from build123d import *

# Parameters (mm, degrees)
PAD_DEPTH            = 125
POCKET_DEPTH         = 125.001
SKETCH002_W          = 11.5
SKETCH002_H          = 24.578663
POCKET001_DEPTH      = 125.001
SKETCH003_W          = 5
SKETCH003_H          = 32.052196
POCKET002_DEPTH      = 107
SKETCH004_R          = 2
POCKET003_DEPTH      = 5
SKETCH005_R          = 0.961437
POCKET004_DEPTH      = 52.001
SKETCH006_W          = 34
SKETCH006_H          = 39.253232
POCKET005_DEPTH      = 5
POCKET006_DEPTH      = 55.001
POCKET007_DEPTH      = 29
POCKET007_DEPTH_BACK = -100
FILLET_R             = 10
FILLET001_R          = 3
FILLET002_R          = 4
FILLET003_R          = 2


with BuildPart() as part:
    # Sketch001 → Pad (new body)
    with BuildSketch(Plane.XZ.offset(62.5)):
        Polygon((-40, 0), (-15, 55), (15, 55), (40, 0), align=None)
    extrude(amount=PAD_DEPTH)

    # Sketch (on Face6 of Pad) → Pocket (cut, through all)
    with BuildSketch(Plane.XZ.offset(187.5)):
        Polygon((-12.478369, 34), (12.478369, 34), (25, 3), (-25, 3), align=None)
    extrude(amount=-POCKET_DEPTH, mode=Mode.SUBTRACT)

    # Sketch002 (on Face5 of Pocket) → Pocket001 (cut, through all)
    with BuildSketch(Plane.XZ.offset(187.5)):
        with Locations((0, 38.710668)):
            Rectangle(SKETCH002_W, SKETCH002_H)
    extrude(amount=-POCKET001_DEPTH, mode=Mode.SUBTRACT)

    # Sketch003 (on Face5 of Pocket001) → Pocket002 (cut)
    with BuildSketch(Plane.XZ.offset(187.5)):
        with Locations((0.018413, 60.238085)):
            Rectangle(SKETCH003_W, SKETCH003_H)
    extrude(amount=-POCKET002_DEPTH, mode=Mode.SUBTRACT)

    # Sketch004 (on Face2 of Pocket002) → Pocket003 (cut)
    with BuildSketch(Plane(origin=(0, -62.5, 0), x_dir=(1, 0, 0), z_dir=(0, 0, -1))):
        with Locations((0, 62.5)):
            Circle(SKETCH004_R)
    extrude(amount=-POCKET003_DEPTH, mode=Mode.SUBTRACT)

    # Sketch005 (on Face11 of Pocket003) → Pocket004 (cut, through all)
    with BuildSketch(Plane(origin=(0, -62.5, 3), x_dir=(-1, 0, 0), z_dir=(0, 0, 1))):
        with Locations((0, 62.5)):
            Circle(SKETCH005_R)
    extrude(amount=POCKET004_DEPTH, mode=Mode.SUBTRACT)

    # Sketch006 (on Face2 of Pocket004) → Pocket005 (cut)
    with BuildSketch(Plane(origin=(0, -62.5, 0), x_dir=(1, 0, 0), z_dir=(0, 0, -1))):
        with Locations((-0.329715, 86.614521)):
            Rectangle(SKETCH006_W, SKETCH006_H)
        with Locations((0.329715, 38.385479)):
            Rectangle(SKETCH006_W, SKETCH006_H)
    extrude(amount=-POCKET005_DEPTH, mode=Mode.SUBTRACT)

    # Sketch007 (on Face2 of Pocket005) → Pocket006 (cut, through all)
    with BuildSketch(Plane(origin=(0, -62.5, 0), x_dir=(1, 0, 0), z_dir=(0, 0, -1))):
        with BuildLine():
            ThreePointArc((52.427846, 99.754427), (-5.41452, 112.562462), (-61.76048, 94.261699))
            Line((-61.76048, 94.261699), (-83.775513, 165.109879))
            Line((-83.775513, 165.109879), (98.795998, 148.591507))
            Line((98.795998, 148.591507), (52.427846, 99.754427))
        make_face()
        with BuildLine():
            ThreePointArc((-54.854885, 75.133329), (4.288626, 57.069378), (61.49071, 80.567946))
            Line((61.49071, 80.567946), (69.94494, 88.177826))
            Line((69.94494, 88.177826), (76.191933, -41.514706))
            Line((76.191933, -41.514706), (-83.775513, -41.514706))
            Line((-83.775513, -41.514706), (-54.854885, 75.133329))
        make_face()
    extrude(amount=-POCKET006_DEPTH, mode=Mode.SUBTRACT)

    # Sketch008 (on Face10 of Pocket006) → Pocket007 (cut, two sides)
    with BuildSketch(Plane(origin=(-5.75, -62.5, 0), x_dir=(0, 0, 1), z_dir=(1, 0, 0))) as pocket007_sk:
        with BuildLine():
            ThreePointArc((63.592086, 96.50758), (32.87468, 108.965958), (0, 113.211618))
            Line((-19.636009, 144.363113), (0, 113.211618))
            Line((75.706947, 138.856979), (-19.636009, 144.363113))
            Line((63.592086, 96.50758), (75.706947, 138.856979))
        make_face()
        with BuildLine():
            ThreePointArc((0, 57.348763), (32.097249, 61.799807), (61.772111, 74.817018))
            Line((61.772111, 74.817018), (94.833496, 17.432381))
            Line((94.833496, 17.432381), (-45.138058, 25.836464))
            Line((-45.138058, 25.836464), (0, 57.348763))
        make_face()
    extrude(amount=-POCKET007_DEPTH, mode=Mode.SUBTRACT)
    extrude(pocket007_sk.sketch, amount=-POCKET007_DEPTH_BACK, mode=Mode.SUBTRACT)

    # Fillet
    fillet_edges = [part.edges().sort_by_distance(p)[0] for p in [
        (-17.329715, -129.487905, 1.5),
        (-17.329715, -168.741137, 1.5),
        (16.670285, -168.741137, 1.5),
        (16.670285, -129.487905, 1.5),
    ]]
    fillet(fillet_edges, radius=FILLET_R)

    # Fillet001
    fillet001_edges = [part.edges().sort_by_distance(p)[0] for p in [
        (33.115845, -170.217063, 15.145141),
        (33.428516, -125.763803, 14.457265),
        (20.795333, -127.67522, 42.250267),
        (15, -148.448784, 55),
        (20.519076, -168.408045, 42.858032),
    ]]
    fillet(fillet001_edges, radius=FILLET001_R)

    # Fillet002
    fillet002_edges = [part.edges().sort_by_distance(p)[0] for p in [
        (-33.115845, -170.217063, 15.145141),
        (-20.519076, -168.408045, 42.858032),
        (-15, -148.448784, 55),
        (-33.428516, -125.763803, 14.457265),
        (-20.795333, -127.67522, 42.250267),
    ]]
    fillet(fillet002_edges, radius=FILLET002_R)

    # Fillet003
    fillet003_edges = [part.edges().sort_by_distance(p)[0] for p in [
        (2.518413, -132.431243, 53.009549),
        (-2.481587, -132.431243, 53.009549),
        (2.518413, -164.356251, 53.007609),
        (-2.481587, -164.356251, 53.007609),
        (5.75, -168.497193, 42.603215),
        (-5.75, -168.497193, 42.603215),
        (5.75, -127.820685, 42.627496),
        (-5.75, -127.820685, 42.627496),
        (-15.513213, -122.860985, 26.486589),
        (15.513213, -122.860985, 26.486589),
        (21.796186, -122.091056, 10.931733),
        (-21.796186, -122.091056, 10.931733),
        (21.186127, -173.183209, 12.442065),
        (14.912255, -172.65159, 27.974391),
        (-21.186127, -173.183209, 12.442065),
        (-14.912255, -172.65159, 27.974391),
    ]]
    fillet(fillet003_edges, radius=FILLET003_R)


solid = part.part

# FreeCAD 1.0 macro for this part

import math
import FreeCAD as App
import Part
import Sketcher


def edges_at(feature, points):
    """Names of the edges that pass closest to the given points."""
    edges = feature.Shape.Edges
    near = lambda p: min(range(len(edges)), key=lambda i: edges[i].distToShape(Part.Vertex(*p))[0])
    return sorted({f"Edge{near(p) + 1}" for p in points})


def add_polygon(sketch, points):
    """Adds a closed chain of lines whose ends are joined by coincident constraints."""
    first, n = sketch.GeometryCount, len(points)
    for a, b in zip(points, points[1:] + points[:1]):
        sketch.addGeometry(Part.LineSegment(App.Vector(*a, 0), App.Vector(*b, 0)), False)
    for i in range(n):
        sketch.addConstraint(Sketcher.Constraint("Coincident", first + i, 2, first + (i + 1) % n, 1))

doc = App.newDocument("Part")
params = doc.addObject("Spreadsheet::Sheet", "Params")
for row, (alias, value) in enumerate([
    ("sketch1_width", "80 mm"),
    ("sketch1_width2", "30 mm"),
    ("pad1_length", "125 mm"),
    ("sketch2_width", "50 mm"),
    ("sketch3_width", "11.5 mm"),
    ("sketch4_width", "5 mm"),
    ("pocket3_length", "107 mm"),
    ("sketch5_diameter", "4 mm"),
    ("pocket4_length", "5 mm"),
    ("sketch7_width", "34 mm"),
    ("pocket6_length", "5 mm"),
    ("fillet_radius", "10 mm"),
    ("fillet2_radius", "3 mm"),
    ("fillet3_radius", "4 mm"),
    ("fillet4_radius", "2 mm"),
], start=1):
    params.set(f"A{row}", alias)
    params.set(f"B{row}", "=" + value)
    params.setAlias(f"B{row}", alias)

body = doc.addObject("PartDesign::Body", "Body")

# Sketch on XZ plane
sketch1 = doc.addObject("Sketcher::SketchObject", "Sketch")
body.addObject(sketch1)
sketch1.AttachmentSupport = (doc.XZ_Plane, [""])
sketch1.MapMode = "FlatFace"
sketch1.AttachmentOffset = App.Placement(App.Vector(0, 0, 62.5), App.Rotation())
add_polygon(sketch1, [(-15, 55), (-40, 0), (40, 0), (15, 55)])  # lines 0-3
sketch1.addConstraint([
    Sketcher.Constraint("Horizontal", 1),
    Sketcher.Constraint("Horizontal", 3),
    Sketcher.Constraint("Symmetric", 0, 2, 1, 2, -1, 1),
    Sketcher.Constraint("Equal", 0, 2),
    Sketcher.Constraint("DistanceX", 1, 1, 1, 2, 80.0),
    Sketcher.Constraint("DistanceX", 3, 2, 3, 1, 30.0),
    Sketcher.Constraint("DistanceY", -1, 1, 2, 2, 55.0),
])
sketch1.setExpression("Constraints[8]", "Params.sketch1_width")
sketch1.setExpression("Constraints[9]", "Params.sketch1_width2")
pad1 = doc.addObject("PartDesign::Pad", "Pad")
body.addObject(pad1)
pad1.Profile = sketch1
pad1.setExpression("Length", "Params.pad1_length")

# Sketch on XZ plane
sketch2 = doc.addObject("Sketcher::SketchObject", "Sketch001")
body.addObject(sketch2)
sketch2.AttachmentSupport = (doc.XZ_Plane, [""])
sketch2.MapMode = "FlatFace"
sketch2.AttachmentOffset = App.Placement(App.Vector(0, 0, 187.5), App.Rotation())
add_polygon(sketch2, [(12, 34), (-12, 34), (-25, 3), (25, 3)])  # lines 0-3
sketch2.addConstraint([
    Sketcher.Constraint("Horizontal", 0),
    Sketcher.Constraint("Horizontal", 2),
    Sketcher.Constraint("Equal", 1, 3),
    Sketcher.Constraint("DistanceX", 2, 1, 2, 2, 50.0),
    Sketcher.Constraint("DistanceY", -1, 1, 0, 2, 34.0),
    Sketcher.Constraint("DistanceX", 1, 2, -1, 1, 25.0),
    Sketcher.Constraint("DistanceY", -1, 1, 1, 2, 3.0),
    Sketcher.Constraint("DistanceX", 0, 2, 0, 1, 24.956738),
])
sketch2.setExpression("Constraints[7]", "Params.sketch2_width")
pocket1 = doc.addObject("PartDesign::Pocket", "Pocket")
body.addObject(pocket1)
pocket1.Profile = sketch2
pocket1.Type = "ThroughAll"

# Sketch on XZ plane
sketch3 = doc.addObject("Sketcher::SketchObject", "Sketch002")
body.addObject(sketch3)
sketch3.AttachmentSupport = (doc.XZ_Plane, [""])
sketch3.MapMode = "FlatFace"
sketch3.AttachmentOffset = App.Placement(App.Vector(0, 0, 187.5), App.Rotation())
add_polygon(sketch3, [(-6, 51), (-6, 26), (6, 26), (6, 51)])  # lines 0-3
sketch3.addConstraint([
    Sketcher.Constraint("Vertical", 0),
    Sketcher.Constraint("Horizontal", 1),
    Sketcher.Constraint("Vertical", 2),
    Sketcher.Constraint("Horizontal", 3),
    Sketcher.Constraint("DistanceX", 1, 1, 1, 2, 11.5),
    Sketcher.Constraint("DistanceY", -1, 1, 2, 2, 51.0),
    Sketcher.Constraint("DistanceX", 0, 2, -1, 1, 5.75),
    Sketcher.Constraint("DistanceY", 0, 2, 0, 1, 24.578663),
])
sketch3.setExpression("Constraints[8]", "Params.sketch3_width")
pocket2 = doc.addObject("PartDesign::Pocket", "Pocket001")
body.addObject(pocket2)
pocket2.Profile = sketch3
pocket2.Type = "ThroughAll"

# Sketch on XZ plane
sketch4 = doc.addObject("Sketcher::SketchObject", "Sketch003")
body.addObject(sketch4)
sketch4.AttachmentSupport = (doc.XZ_Plane, [""])
sketch4.MapMode = "FlatFace"
sketch4.AttachmentOffset = App.Placement(App.Vector(0, 0, 187.5), App.Rotation())
add_polygon(sketch4, [(-2, 76), (-2, 44), (3, 44), (3, 76)])  # lines 0-3
sketch4.addConstraint([
    Sketcher.Constraint("Vertical", 0),
    Sketcher.Constraint("Horizontal", 1),
    Sketcher.Constraint("Vertical", 2),
    Sketcher.Constraint("Horizontal", 3),
    Sketcher.Constraint("DistanceX", 1, 1, 1, 2, 5.0),
    Sketcher.Constraint("DistanceY", 0, 2, 0, 1, 32.052196),
    Sketcher.Constraint("DistanceX", 0, 2, -1, 1, 2.481587),
    Sketcher.Constraint("DistanceY", -1, 1, 0, 2, 44.211987),
])
sketch4.setExpression("Constraints[8]", "Params.sketch4_width")
pocket3 = doc.addObject("PartDesign::Pocket", "Pocket002")
body.addObject(pocket3)
pocket3.Profile = sketch4
pocket3.setExpression("Length", "Params.pocket3_length")

# Sketch on XY plane
sketch5 = doc.addObject("Sketcher::SketchObject", "Sketch004")
body.addObject(sketch5)
sketch5.AttachmentSupport = (doc.XY_Plane, [""])
sketch5.MapMode = "FlatFace"
sketch5.addGeometry(Part.Circle(App.Vector(0, -125, 0), App.Vector(0, 0, 1), 2), False)
sketch5.addConstraint([
    Sketcher.Constraint("PointOnObject", 0, 3, -2),
    Sketcher.Constraint("Diameter", 0, 4.0),
    Sketcher.Constraint("DistanceY", 0, 3, -1, 1, 125.0),
])
sketch5.setExpression("Constraints[1]", "Params.sketch5_diameter")
pocket4 = doc.addObject("PartDesign::Pocket", "Pocket003")
body.addObject(pocket4)
pocket4.Profile = sketch5
pocket4.setExpression("Length", "Params.pocket4_length")
pocket4.Reversed = True

# Sketch on XY plane
sketch6 = doc.addObject("Sketcher::SketchObject", "Sketch005")
body.addObject(sketch6)
sketch6.AttachmentSupport = (doc.XY_Plane, [""])
sketch6.MapMode = "FlatFace"
sketch6.AttachmentOffset = App.Placement(App.Vector(0, 0, 3), App.Rotation())
sketch6.addGeometry(Part.Circle(App.Vector(0, -125, 0), App.Vector(0, 0, 1), 1), False)
sketch6.addConstraint([
    Sketcher.Constraint("PointOnObject", 0, 3, -2),
    Sketcher.Constraint("DistanceY", 0, 3, -1, 1, 125.0),
    Sketcher.Constraint("Diameter", 0, 1.922874),
])
pocket5 = doc.addObject("PartDesign::Pocket", "Pocket004")
body.addObject(pocket5)
pocket5.Profile = sketch6
pocket5.Type = "ThroughAll"
pocket5.Reversed = True

# Sketch on XY plane
sketch7 = doc.addObject("Sketcher::SketchObject", "Sketch006")
body.addObject(sketch7)
sketch7.AttachmentSupport = (doc.XY_Plane, [""])
sketch7.MapMode = "FlatFace"
add_polygon(sketch7, [(-17, -169), (-17, -129), (17, -129), (17, -169)])  # lines 0-3
add_polygon(sketch7, [(-17, -121), (-17, -81), (17, -81), (17, -121)])  # lines 4-7
sketch7.addConstraint([
    Sketcher.Constraint("Vertical", 0),
    Sketcher.Constraint("Horizontal", 1),
    Sketcher.Constraint("Vertical", 2),
    Sketcher.Constraint("Horizontal", 3),
    Sketcher.Constraint("Vertical", 4),
    Sketcher.Constraint("Horizontal", 5),
    Sketcher.Constraint("Vertical", 6),
    Sketcher.Constraint("Horizontal", 7),
    Sketcher.Constraint("Equal", 3, 5),
    Sketcher.Constraint("Equal", 2, 4),
    Sketcher.Constraint("DistanceX", 1, 1, 1, 2, 34.0),
    Sketcher.Constraint("DistanceY", 0, 1, 0, 2, 39.253232),
    Sketcher.Constraint("DistanceX", 0, 2, 4, 2, 0.65943),
    Sketcher.Constraint("DistanceY", 1, 2, 6, 2, 8.97581),
    Sketcher.Constraint("DistanceX", 0, 2, -1, 1, 17.329715),
    Sketcher.Constraint("DistanceY", 0, 2, -1, 1, 129.487905),
])
sketch7.setExpression("Constraints[18]", "Params.sketch7_width")
pocket6 = doc.addObject("PartDesign::Pocket", "Pocket005")
body.addObject(pocket6)
pocket6.Profile = sketch7
pocket6.setExpression("Length", "Params.pocket6_length")
pocket6.Reversed = True

# Sketch on XY plane
sketch8 = doc.addObject("Sketcher::SketchObject", "Sketch007")
body.addObject(sketch8)
sketch8.AttachmentSupport = (doc.XY_Plane, [""])
sketch8.MapMode = "FlatFace"
sketch8.addGeometry([
    Part.ArcOfCircle(Part.Circle(App.Vector(0, -63, 0), App.Vector(0, 0, 1), 113), math.radians(-123), math.radians(-62)),  # 0
    Part.LineSegment(App.Vector(52, -162, 0), App.Vector(99, -211, 0)),  # 1
    Part.LineSegment(App.Vector(99, -211, 0), App.Vector(-84, -228, 0)),  # 2
    Part.LineSegment(App.Vector(-84, -228, 0), App.Vector(-62, -157, 0)),  # 3
    Part.ArcOfCircle(Part.Circle(App.Vector(0, -211, 0), App.Vector(0, 0, 1), 92), math.radians(48), math.radians(127)),  # 4
    Part.LineSegment(App.Vector(-55, -138, 0), App.Vector(-84, -21, 0)),  # 5
    Part.LineSegment(App.Vector(-84, -21, 0), App.Vector(76, -21, 0)),  # 6
    Part.LineSegment(App.Vector(76, -21, 0), App.Vector(70, -151, 0)),  # 7
    Part.LineSegment(App.Vector(70, -151, 0), App.Vector(61, -143, 0)),  # 8
], False)
sketch8.addConstraint([
    Sketcher.Constraint("Coincident", 0, 2, 1, 1),
    Sketcher.Constraint("Coincident", 1, 2, 2, 1),
    Sketcher.Constraint("Coincident", 2, 2, 3, 1),
    Sketcher.Constraint("Coincident", 3, 2, 0, 1),
    Sketcher.Constraint("Coincident", 4, 2, 5, 1),
    Sketcher.Constraint("Coincident", 5, 2, 6, 1),
    Sketcher.Constraint("Coincident", 6, 2, 7, 1),
    Sketcher.Constraint("Coincident", 7, 2, 8, 1),
    Sketcher.Constraint("Tangent", 8, 2, 4, 1),
    Sketcher.Constraint("Horizontal", 6),
    Sketcher.Constraint("PointOnObject", 0, 3, -2),
    Sketcher.Constraint("PointOnObject", 4, 3, -2),
    Sketcher.Constraint("Vertical", 2, 2, 5, 2),
    Sketcher.Constraint("Radius", 0, 112.692609),
    Sketcher.Constraint("Radius", 4, 91.912039),
    Sketcher.Constraint("DistanceX", 0, 3, 1, 2, 98.795998),
    Sketcher.Constraint("Distance", 3, 74.189799),
    Sketcher.Constraint("DistanceY", 3, 2, -1, 1, 156.761699),
    Sketcher.Constraint("DistanceY", 4, 3, 1, 2, 0.289802),
    Sketcher.Constraint("DistanceY", 0, 2, 7, 2, 11.576601),
    Sketcher.Constraint("Distance", 8, 11.374721),
    Sketcher.Constraint("DistanceX", 6, 1, 6, 2, 159.967446),
    Sketcher.Constraint("DistanceY", 4, 3, -1, 1, 211.381309),
    Sketcher.Constraint("DistanceY", 2, 2, -1, 1, 227.609879),
    Sketcher.Constraint("DistanceX", 3, 2, -1, 1, 61.76048),
    Sketcher.Constraint("DistanceY", 4, 2, -1, 1, 137.633329),
    Sketcher.Constraint("DistanceX", -1, 1, 7, 2, 69.94494),
    Sketcher.Constraint("DistanceY", 0, 3, 5, 2, 41.51471),
])
pocket7 = doc.addObject("PartDesign::Pocket", "Pocket006")
body.addObject(pocket7)
pocket7.Profile = sketch8
pocket7.Type = "ThroughAll"
pocket7.Reversed = True

# Sketch on YZ plane
sketch9 = doc.addObject("Sketcher::SketchObject", "Sketch008")
body.addObject(sketch9)
sketch9.AttachmentSupport = (doc.YZ_Plane, [""])
sketch9.MapMode = "FlatFace"
sketch9.AttachmentOffset = App.Placement(App.Vector(0, 0, -5.75), App.Rotation())
sketch9.addGeometry([
    Part.ArcOfCircle(Part.Circle(App.Vector(-46, 0, 0), App.Vector(0, 0, 1), 129), math.radians(151), math.radians(180)),  # 0
    Part.LineSegment(App.Vector(-159, 64, 0), App.Vector(-201, 76, 0)),  # 1
    Part.LineSegment(App.Vector(-201, 76, 0), App.Vector(-207, -20, 0)),  # 2
    Part.LineSegment(App.Vector(-207, -20, 0), App.Vector(-176, 0, 0)),  # 3
    Part.ArcOfCircle(Part.Circle(App.Vector(-238, 0, 0), App.Vector(0, 0, 1), 118), math.radians(0), math.radians(32)),  # 4
    Part.LineSegment(App.Vector(-120, 0, 0), App.Vector(-88, -45, 0)),  # 5
    Part.LineSegment(App.Vector(-88, -45, 0), App.Vector(-80, 95, 0)),  # 6
    Part.LineSegment(App.Vector(-80, 95, 0), App.Vector(-137, 62, 0)),  # 7
], False)
sketch9.addConstraint([
    Sketcher.Constraint("Coincident", 0, 1, 1, 1),
    Sketcher.Constraint("Coincident", 1, 2, 2, 1),
    Sketcher.Constraint("Coincident", 2, 2, 3, 1),
    Sketcher.Constraint("Coincident", 3, 2, 0, 2),
    Sketcher.Constraint("Coincident", 4, 1, 5, 1),
    Sketcher.Constraint("Coincident", 5, 2, 6, 1),
    Sketcher.Constraint("Coincident", 6, 2, 7, 1),
    Sketcher.Constraint("Coincident", 7, 2, 4, 2),
    Sketcher.Constraint("PointOnObject", 4, 3, -1),
    Sketcher.Constraint("PointOnObject", 3, 2, -1),
    Sketcher.Constraint("PointOnObject", 4, 1, -1),
    Sketcher.Constraint("Radius", 4, 117.95493),
    Sketcher.Constraint("Radius", 0, 129.399176),
    Sketcher.Constraint("Distance", 5, 55.049698),
    Sketcher.Constraint("DistanceX", 1, 2, 0, 1, 42.349399),
    Sketcher.Constraint("DistanceX", 4, 1, 5, 2, 31.512299),
    Sketcher.Constraint("DistanceX", 0, 1, 6, 2, 79.075199),
    Sketcher.Constraint("DistanceX", 3, 2, 7, 2, 38.3946),
    Sketcher.Constraint("Distance", 1, 44.048172),
    Sketcher.Constraint("Distance", 3, 36.823749),
    Sketcher.Constraint("DistanceX", 0, 3, -1, 1, 46.312442),
    Sketcher.Constraint("DistanceX", 0, 1, -1, 1, 159.00758),
    Sketcher.Constraint("DistanceY", 2, 2, -1, 1, 19.636009),
    Sketcher.Constraint("DistanceY", -1, 1, 7, 2, 61.772111),
    Sketcher.Constraint("DistanceY", 0, 1, 6, 2, 31.24141),
    Sketcher.Constraint("Distance", 2, 95.501816),
])
pocket8 = doc.addObject("PartDesign::Pocket", "Pocket007")
body.addObject(pocket8)
pocket8.Profile = sketch9
pocket8.Type = "ThroughAll"
pocket8.Midplane = True
doc.recompute()

fillet = doc.addObject("PartDesign::Fillet", "Fillet")
body.addObject(fillet)
fillet.Base = (pocket8, edges_at(pocket8, [
    (-17.33, -129.488, 1.5),
    (-17.33, -168.741, 1.5),
    (16.67, -168.741, 1.5),
    (16.67, -129.488, 1.5),
]))
fillet.setExpression("Radius", "Params.fillet_radius")
doc.recompute()

fillet2 = doc.addObject("PartDesign::Fillet", "Fillet001")
body.addObject(fillet2)
fillet2.Base = (fillet, edges_at(fillet, [
    (33.116, -170.217, 15.145),
    (33.429, -125.764, 14.457),
    (20.795, -127.675, 42.25),
    (15, -148.449, 55),
    (20.519, -168.408, 42.858),
]))
fillet2.setExpression("Radius", "Params.fillet2_radius")
doc.recompute()

fillet3 = doc.addObject("PartDesign::Fillet", "Fillet002")
body.addObject(fillet3)
fillet3.Base = (fillet2, edges_at(fillet2, [
    (-33.116, -170.217, 15.145),
    (-20.519, -168.408, 42.858),
    (-15, -148.449, 55),
    (-33.429, -125.764, 14.457),
    (-20.795, -127.675, 42.25),
]))
fillet3.setExpression("Radius", "Params.fillet3_radius")
doc.recompute()

fillet4 = doc.addObject("PartDesign::Fillet", "Fillet003")
body.addObject(fillet4)
fillet4.Base = (fillet3, edges_at(fillet3, [
    (2.518, -132.431, 53.01),
    (-2.482, -132.431, 53.01),
    (2.518, -164.356, 53.008),
    (-2.482, -164.356, 53.008),
    (5.75, -168.497, 42.603),
    (-5.75, -168.497, 42.603),
    (5.75, -127.821, 42.627),
    (-5.75, -127.821, 42.627),
    (-15.513, -122.861, 26.487),
    (15.513, -122.861, 26.487),
    (21.796, -122.091, 10.932),
    (-21.796, -122.091, 10.932),
    (21.186, -173.183, 12.442),
    (14.912, -172.652, 27.974),
    (-21.186, -173.183, 12.442),
    (-14.912, -172.652, 27.974),
]))
fillet4.setExpression("Radius", "Params.fillet4_radius")

doc.recompute()
